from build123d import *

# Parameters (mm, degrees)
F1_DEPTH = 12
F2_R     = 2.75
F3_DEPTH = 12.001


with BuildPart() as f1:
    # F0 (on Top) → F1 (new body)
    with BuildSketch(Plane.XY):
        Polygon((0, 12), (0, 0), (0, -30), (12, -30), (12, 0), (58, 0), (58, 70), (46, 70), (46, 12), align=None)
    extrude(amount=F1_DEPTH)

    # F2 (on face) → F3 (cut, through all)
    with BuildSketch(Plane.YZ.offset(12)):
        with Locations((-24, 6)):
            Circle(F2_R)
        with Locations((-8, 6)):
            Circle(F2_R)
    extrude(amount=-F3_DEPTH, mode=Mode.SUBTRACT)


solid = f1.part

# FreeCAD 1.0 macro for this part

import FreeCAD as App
import Part
import Sketcher

V = App.Vector
Q = App.Units.Quantity


def add_polygon(sketch, points):
    """Adds a closed chain of lines whose ends are joined by coincident constraints."""
    first, n = sketch.GeometryCount, len(points)
    for a, b in zip(points, points[1:] + points[:1]):
        sketch.addGeometry(Part.LineSegment(App.Vector(*a, 0), App.Vector(*b, 0)), False)
    for i in range(n):
        sketch.addConstraint(Sketcher.Constraint("Coincident", first + i, 2, first + (i + 1) % n, 1))

doc = App.newDocument("Part")
body = doc.addObject("PartDesign::Body", "Body")

# Sketch on XY plane
sketch1 = body.newObject("Sketcher::SketchObject", "Sketch")
sketch1.AttachmentSupport = (doc.getObject("XY_Plane"), [""])
sketch1.MapMode = "FlatFace"
add_polygon(sketch1, [(0, 12), (0, -30), (12, -30), (12, 0), (58, 0), (58, 70), (46, 70), (46, 12)])  # lines 0-7
sketch1.addConstraint([
    Sketcher.Constraint("Vertical", 0),
    Sketcher.Constraint("Horizontal", 1),
    Sketcher.Constraint("Vertical", 2),
    Sketcher.Constraint("Horizontal", 3),
    Sketcher.Constraint("Vertical", 4),
    Sketcher.Constraint("Horizontal", 5),
    Sketcher.Constraint("Vertical", 6),
    Sketcher.Constraint("Horizontal", 7),
    Sketcher.Constraint("PointOnObject", 0, 2, -2),
    Sketcher.Constraint("PointOnObject", 2, 2, -1),
    Sketcher.Constraint("Equal", 1, 5),
    Sketcher.Constraint("DistanceX", 1, 1, 1, 2, Q("12 mm")),
    Sketcher.Constraint("DistanceX", 3, 1, 3, 2, Q("46 mm")),
    Sketcher.Constraint("DistanceY", 0, 2, 0, 1, Q("42 mm")),
    Sketcher.Constraint("DistanceY", 2, 1, 2, 2, Q("30 mm")),
    Sketcher.Constraint("DistanceY", 4, 1, 4, 2, Q("70 mm")),
])
pad1 = body.newObject("PartDesign::Pad", "Pad")
pad1.Profile = sketch1
pad1.Length = 12

# Sketch on YZ plane
sketch2 = body.newObject("Sketcher::SketchObject", "Sketch001")
sketch2.AttachmentSupport = (doc.getObject("YZ_Plane"), [""])
sketch2.MapMode = "FlatFace"
sketch2.AttachmentOffset = App.Placement(V(0, 0, 12), App.Rotation())
sketch2.addGeometry([
    Part.Circle(V(-24, 6, 0), V(0, 0, 1), 2.8),
    Part.Circle(V(-8, 6, 0), V(0, 0, 1), 2.8),
], False)
sketch2.addConstraint([
    Sketcher.Constraint("Equal", 0, 1),
    Sketcher.Constraint("Horizontal", 0, 3, 1, 3),
    Sketcher.Constraint("Diameter", 0, Q("5.5 mm")),
    Sketcher.Constraint("DistanceX", 0, 3, -1, 1, Q("24 mm")),
    Sketcher.Constraint("DistanceY", -1, 1, 0, 3, Q("6 mm")),
    Sketcher.Constraint("DistanceX", 1, 3, -1, 1, Q("8 mm")),
])
pocket1 = body.newObject("PartDesign::Pocket", "Pocket")
pocket1.Profile = sketch2
pocket1.Type = "ThroughAll"

doc.recompute()
